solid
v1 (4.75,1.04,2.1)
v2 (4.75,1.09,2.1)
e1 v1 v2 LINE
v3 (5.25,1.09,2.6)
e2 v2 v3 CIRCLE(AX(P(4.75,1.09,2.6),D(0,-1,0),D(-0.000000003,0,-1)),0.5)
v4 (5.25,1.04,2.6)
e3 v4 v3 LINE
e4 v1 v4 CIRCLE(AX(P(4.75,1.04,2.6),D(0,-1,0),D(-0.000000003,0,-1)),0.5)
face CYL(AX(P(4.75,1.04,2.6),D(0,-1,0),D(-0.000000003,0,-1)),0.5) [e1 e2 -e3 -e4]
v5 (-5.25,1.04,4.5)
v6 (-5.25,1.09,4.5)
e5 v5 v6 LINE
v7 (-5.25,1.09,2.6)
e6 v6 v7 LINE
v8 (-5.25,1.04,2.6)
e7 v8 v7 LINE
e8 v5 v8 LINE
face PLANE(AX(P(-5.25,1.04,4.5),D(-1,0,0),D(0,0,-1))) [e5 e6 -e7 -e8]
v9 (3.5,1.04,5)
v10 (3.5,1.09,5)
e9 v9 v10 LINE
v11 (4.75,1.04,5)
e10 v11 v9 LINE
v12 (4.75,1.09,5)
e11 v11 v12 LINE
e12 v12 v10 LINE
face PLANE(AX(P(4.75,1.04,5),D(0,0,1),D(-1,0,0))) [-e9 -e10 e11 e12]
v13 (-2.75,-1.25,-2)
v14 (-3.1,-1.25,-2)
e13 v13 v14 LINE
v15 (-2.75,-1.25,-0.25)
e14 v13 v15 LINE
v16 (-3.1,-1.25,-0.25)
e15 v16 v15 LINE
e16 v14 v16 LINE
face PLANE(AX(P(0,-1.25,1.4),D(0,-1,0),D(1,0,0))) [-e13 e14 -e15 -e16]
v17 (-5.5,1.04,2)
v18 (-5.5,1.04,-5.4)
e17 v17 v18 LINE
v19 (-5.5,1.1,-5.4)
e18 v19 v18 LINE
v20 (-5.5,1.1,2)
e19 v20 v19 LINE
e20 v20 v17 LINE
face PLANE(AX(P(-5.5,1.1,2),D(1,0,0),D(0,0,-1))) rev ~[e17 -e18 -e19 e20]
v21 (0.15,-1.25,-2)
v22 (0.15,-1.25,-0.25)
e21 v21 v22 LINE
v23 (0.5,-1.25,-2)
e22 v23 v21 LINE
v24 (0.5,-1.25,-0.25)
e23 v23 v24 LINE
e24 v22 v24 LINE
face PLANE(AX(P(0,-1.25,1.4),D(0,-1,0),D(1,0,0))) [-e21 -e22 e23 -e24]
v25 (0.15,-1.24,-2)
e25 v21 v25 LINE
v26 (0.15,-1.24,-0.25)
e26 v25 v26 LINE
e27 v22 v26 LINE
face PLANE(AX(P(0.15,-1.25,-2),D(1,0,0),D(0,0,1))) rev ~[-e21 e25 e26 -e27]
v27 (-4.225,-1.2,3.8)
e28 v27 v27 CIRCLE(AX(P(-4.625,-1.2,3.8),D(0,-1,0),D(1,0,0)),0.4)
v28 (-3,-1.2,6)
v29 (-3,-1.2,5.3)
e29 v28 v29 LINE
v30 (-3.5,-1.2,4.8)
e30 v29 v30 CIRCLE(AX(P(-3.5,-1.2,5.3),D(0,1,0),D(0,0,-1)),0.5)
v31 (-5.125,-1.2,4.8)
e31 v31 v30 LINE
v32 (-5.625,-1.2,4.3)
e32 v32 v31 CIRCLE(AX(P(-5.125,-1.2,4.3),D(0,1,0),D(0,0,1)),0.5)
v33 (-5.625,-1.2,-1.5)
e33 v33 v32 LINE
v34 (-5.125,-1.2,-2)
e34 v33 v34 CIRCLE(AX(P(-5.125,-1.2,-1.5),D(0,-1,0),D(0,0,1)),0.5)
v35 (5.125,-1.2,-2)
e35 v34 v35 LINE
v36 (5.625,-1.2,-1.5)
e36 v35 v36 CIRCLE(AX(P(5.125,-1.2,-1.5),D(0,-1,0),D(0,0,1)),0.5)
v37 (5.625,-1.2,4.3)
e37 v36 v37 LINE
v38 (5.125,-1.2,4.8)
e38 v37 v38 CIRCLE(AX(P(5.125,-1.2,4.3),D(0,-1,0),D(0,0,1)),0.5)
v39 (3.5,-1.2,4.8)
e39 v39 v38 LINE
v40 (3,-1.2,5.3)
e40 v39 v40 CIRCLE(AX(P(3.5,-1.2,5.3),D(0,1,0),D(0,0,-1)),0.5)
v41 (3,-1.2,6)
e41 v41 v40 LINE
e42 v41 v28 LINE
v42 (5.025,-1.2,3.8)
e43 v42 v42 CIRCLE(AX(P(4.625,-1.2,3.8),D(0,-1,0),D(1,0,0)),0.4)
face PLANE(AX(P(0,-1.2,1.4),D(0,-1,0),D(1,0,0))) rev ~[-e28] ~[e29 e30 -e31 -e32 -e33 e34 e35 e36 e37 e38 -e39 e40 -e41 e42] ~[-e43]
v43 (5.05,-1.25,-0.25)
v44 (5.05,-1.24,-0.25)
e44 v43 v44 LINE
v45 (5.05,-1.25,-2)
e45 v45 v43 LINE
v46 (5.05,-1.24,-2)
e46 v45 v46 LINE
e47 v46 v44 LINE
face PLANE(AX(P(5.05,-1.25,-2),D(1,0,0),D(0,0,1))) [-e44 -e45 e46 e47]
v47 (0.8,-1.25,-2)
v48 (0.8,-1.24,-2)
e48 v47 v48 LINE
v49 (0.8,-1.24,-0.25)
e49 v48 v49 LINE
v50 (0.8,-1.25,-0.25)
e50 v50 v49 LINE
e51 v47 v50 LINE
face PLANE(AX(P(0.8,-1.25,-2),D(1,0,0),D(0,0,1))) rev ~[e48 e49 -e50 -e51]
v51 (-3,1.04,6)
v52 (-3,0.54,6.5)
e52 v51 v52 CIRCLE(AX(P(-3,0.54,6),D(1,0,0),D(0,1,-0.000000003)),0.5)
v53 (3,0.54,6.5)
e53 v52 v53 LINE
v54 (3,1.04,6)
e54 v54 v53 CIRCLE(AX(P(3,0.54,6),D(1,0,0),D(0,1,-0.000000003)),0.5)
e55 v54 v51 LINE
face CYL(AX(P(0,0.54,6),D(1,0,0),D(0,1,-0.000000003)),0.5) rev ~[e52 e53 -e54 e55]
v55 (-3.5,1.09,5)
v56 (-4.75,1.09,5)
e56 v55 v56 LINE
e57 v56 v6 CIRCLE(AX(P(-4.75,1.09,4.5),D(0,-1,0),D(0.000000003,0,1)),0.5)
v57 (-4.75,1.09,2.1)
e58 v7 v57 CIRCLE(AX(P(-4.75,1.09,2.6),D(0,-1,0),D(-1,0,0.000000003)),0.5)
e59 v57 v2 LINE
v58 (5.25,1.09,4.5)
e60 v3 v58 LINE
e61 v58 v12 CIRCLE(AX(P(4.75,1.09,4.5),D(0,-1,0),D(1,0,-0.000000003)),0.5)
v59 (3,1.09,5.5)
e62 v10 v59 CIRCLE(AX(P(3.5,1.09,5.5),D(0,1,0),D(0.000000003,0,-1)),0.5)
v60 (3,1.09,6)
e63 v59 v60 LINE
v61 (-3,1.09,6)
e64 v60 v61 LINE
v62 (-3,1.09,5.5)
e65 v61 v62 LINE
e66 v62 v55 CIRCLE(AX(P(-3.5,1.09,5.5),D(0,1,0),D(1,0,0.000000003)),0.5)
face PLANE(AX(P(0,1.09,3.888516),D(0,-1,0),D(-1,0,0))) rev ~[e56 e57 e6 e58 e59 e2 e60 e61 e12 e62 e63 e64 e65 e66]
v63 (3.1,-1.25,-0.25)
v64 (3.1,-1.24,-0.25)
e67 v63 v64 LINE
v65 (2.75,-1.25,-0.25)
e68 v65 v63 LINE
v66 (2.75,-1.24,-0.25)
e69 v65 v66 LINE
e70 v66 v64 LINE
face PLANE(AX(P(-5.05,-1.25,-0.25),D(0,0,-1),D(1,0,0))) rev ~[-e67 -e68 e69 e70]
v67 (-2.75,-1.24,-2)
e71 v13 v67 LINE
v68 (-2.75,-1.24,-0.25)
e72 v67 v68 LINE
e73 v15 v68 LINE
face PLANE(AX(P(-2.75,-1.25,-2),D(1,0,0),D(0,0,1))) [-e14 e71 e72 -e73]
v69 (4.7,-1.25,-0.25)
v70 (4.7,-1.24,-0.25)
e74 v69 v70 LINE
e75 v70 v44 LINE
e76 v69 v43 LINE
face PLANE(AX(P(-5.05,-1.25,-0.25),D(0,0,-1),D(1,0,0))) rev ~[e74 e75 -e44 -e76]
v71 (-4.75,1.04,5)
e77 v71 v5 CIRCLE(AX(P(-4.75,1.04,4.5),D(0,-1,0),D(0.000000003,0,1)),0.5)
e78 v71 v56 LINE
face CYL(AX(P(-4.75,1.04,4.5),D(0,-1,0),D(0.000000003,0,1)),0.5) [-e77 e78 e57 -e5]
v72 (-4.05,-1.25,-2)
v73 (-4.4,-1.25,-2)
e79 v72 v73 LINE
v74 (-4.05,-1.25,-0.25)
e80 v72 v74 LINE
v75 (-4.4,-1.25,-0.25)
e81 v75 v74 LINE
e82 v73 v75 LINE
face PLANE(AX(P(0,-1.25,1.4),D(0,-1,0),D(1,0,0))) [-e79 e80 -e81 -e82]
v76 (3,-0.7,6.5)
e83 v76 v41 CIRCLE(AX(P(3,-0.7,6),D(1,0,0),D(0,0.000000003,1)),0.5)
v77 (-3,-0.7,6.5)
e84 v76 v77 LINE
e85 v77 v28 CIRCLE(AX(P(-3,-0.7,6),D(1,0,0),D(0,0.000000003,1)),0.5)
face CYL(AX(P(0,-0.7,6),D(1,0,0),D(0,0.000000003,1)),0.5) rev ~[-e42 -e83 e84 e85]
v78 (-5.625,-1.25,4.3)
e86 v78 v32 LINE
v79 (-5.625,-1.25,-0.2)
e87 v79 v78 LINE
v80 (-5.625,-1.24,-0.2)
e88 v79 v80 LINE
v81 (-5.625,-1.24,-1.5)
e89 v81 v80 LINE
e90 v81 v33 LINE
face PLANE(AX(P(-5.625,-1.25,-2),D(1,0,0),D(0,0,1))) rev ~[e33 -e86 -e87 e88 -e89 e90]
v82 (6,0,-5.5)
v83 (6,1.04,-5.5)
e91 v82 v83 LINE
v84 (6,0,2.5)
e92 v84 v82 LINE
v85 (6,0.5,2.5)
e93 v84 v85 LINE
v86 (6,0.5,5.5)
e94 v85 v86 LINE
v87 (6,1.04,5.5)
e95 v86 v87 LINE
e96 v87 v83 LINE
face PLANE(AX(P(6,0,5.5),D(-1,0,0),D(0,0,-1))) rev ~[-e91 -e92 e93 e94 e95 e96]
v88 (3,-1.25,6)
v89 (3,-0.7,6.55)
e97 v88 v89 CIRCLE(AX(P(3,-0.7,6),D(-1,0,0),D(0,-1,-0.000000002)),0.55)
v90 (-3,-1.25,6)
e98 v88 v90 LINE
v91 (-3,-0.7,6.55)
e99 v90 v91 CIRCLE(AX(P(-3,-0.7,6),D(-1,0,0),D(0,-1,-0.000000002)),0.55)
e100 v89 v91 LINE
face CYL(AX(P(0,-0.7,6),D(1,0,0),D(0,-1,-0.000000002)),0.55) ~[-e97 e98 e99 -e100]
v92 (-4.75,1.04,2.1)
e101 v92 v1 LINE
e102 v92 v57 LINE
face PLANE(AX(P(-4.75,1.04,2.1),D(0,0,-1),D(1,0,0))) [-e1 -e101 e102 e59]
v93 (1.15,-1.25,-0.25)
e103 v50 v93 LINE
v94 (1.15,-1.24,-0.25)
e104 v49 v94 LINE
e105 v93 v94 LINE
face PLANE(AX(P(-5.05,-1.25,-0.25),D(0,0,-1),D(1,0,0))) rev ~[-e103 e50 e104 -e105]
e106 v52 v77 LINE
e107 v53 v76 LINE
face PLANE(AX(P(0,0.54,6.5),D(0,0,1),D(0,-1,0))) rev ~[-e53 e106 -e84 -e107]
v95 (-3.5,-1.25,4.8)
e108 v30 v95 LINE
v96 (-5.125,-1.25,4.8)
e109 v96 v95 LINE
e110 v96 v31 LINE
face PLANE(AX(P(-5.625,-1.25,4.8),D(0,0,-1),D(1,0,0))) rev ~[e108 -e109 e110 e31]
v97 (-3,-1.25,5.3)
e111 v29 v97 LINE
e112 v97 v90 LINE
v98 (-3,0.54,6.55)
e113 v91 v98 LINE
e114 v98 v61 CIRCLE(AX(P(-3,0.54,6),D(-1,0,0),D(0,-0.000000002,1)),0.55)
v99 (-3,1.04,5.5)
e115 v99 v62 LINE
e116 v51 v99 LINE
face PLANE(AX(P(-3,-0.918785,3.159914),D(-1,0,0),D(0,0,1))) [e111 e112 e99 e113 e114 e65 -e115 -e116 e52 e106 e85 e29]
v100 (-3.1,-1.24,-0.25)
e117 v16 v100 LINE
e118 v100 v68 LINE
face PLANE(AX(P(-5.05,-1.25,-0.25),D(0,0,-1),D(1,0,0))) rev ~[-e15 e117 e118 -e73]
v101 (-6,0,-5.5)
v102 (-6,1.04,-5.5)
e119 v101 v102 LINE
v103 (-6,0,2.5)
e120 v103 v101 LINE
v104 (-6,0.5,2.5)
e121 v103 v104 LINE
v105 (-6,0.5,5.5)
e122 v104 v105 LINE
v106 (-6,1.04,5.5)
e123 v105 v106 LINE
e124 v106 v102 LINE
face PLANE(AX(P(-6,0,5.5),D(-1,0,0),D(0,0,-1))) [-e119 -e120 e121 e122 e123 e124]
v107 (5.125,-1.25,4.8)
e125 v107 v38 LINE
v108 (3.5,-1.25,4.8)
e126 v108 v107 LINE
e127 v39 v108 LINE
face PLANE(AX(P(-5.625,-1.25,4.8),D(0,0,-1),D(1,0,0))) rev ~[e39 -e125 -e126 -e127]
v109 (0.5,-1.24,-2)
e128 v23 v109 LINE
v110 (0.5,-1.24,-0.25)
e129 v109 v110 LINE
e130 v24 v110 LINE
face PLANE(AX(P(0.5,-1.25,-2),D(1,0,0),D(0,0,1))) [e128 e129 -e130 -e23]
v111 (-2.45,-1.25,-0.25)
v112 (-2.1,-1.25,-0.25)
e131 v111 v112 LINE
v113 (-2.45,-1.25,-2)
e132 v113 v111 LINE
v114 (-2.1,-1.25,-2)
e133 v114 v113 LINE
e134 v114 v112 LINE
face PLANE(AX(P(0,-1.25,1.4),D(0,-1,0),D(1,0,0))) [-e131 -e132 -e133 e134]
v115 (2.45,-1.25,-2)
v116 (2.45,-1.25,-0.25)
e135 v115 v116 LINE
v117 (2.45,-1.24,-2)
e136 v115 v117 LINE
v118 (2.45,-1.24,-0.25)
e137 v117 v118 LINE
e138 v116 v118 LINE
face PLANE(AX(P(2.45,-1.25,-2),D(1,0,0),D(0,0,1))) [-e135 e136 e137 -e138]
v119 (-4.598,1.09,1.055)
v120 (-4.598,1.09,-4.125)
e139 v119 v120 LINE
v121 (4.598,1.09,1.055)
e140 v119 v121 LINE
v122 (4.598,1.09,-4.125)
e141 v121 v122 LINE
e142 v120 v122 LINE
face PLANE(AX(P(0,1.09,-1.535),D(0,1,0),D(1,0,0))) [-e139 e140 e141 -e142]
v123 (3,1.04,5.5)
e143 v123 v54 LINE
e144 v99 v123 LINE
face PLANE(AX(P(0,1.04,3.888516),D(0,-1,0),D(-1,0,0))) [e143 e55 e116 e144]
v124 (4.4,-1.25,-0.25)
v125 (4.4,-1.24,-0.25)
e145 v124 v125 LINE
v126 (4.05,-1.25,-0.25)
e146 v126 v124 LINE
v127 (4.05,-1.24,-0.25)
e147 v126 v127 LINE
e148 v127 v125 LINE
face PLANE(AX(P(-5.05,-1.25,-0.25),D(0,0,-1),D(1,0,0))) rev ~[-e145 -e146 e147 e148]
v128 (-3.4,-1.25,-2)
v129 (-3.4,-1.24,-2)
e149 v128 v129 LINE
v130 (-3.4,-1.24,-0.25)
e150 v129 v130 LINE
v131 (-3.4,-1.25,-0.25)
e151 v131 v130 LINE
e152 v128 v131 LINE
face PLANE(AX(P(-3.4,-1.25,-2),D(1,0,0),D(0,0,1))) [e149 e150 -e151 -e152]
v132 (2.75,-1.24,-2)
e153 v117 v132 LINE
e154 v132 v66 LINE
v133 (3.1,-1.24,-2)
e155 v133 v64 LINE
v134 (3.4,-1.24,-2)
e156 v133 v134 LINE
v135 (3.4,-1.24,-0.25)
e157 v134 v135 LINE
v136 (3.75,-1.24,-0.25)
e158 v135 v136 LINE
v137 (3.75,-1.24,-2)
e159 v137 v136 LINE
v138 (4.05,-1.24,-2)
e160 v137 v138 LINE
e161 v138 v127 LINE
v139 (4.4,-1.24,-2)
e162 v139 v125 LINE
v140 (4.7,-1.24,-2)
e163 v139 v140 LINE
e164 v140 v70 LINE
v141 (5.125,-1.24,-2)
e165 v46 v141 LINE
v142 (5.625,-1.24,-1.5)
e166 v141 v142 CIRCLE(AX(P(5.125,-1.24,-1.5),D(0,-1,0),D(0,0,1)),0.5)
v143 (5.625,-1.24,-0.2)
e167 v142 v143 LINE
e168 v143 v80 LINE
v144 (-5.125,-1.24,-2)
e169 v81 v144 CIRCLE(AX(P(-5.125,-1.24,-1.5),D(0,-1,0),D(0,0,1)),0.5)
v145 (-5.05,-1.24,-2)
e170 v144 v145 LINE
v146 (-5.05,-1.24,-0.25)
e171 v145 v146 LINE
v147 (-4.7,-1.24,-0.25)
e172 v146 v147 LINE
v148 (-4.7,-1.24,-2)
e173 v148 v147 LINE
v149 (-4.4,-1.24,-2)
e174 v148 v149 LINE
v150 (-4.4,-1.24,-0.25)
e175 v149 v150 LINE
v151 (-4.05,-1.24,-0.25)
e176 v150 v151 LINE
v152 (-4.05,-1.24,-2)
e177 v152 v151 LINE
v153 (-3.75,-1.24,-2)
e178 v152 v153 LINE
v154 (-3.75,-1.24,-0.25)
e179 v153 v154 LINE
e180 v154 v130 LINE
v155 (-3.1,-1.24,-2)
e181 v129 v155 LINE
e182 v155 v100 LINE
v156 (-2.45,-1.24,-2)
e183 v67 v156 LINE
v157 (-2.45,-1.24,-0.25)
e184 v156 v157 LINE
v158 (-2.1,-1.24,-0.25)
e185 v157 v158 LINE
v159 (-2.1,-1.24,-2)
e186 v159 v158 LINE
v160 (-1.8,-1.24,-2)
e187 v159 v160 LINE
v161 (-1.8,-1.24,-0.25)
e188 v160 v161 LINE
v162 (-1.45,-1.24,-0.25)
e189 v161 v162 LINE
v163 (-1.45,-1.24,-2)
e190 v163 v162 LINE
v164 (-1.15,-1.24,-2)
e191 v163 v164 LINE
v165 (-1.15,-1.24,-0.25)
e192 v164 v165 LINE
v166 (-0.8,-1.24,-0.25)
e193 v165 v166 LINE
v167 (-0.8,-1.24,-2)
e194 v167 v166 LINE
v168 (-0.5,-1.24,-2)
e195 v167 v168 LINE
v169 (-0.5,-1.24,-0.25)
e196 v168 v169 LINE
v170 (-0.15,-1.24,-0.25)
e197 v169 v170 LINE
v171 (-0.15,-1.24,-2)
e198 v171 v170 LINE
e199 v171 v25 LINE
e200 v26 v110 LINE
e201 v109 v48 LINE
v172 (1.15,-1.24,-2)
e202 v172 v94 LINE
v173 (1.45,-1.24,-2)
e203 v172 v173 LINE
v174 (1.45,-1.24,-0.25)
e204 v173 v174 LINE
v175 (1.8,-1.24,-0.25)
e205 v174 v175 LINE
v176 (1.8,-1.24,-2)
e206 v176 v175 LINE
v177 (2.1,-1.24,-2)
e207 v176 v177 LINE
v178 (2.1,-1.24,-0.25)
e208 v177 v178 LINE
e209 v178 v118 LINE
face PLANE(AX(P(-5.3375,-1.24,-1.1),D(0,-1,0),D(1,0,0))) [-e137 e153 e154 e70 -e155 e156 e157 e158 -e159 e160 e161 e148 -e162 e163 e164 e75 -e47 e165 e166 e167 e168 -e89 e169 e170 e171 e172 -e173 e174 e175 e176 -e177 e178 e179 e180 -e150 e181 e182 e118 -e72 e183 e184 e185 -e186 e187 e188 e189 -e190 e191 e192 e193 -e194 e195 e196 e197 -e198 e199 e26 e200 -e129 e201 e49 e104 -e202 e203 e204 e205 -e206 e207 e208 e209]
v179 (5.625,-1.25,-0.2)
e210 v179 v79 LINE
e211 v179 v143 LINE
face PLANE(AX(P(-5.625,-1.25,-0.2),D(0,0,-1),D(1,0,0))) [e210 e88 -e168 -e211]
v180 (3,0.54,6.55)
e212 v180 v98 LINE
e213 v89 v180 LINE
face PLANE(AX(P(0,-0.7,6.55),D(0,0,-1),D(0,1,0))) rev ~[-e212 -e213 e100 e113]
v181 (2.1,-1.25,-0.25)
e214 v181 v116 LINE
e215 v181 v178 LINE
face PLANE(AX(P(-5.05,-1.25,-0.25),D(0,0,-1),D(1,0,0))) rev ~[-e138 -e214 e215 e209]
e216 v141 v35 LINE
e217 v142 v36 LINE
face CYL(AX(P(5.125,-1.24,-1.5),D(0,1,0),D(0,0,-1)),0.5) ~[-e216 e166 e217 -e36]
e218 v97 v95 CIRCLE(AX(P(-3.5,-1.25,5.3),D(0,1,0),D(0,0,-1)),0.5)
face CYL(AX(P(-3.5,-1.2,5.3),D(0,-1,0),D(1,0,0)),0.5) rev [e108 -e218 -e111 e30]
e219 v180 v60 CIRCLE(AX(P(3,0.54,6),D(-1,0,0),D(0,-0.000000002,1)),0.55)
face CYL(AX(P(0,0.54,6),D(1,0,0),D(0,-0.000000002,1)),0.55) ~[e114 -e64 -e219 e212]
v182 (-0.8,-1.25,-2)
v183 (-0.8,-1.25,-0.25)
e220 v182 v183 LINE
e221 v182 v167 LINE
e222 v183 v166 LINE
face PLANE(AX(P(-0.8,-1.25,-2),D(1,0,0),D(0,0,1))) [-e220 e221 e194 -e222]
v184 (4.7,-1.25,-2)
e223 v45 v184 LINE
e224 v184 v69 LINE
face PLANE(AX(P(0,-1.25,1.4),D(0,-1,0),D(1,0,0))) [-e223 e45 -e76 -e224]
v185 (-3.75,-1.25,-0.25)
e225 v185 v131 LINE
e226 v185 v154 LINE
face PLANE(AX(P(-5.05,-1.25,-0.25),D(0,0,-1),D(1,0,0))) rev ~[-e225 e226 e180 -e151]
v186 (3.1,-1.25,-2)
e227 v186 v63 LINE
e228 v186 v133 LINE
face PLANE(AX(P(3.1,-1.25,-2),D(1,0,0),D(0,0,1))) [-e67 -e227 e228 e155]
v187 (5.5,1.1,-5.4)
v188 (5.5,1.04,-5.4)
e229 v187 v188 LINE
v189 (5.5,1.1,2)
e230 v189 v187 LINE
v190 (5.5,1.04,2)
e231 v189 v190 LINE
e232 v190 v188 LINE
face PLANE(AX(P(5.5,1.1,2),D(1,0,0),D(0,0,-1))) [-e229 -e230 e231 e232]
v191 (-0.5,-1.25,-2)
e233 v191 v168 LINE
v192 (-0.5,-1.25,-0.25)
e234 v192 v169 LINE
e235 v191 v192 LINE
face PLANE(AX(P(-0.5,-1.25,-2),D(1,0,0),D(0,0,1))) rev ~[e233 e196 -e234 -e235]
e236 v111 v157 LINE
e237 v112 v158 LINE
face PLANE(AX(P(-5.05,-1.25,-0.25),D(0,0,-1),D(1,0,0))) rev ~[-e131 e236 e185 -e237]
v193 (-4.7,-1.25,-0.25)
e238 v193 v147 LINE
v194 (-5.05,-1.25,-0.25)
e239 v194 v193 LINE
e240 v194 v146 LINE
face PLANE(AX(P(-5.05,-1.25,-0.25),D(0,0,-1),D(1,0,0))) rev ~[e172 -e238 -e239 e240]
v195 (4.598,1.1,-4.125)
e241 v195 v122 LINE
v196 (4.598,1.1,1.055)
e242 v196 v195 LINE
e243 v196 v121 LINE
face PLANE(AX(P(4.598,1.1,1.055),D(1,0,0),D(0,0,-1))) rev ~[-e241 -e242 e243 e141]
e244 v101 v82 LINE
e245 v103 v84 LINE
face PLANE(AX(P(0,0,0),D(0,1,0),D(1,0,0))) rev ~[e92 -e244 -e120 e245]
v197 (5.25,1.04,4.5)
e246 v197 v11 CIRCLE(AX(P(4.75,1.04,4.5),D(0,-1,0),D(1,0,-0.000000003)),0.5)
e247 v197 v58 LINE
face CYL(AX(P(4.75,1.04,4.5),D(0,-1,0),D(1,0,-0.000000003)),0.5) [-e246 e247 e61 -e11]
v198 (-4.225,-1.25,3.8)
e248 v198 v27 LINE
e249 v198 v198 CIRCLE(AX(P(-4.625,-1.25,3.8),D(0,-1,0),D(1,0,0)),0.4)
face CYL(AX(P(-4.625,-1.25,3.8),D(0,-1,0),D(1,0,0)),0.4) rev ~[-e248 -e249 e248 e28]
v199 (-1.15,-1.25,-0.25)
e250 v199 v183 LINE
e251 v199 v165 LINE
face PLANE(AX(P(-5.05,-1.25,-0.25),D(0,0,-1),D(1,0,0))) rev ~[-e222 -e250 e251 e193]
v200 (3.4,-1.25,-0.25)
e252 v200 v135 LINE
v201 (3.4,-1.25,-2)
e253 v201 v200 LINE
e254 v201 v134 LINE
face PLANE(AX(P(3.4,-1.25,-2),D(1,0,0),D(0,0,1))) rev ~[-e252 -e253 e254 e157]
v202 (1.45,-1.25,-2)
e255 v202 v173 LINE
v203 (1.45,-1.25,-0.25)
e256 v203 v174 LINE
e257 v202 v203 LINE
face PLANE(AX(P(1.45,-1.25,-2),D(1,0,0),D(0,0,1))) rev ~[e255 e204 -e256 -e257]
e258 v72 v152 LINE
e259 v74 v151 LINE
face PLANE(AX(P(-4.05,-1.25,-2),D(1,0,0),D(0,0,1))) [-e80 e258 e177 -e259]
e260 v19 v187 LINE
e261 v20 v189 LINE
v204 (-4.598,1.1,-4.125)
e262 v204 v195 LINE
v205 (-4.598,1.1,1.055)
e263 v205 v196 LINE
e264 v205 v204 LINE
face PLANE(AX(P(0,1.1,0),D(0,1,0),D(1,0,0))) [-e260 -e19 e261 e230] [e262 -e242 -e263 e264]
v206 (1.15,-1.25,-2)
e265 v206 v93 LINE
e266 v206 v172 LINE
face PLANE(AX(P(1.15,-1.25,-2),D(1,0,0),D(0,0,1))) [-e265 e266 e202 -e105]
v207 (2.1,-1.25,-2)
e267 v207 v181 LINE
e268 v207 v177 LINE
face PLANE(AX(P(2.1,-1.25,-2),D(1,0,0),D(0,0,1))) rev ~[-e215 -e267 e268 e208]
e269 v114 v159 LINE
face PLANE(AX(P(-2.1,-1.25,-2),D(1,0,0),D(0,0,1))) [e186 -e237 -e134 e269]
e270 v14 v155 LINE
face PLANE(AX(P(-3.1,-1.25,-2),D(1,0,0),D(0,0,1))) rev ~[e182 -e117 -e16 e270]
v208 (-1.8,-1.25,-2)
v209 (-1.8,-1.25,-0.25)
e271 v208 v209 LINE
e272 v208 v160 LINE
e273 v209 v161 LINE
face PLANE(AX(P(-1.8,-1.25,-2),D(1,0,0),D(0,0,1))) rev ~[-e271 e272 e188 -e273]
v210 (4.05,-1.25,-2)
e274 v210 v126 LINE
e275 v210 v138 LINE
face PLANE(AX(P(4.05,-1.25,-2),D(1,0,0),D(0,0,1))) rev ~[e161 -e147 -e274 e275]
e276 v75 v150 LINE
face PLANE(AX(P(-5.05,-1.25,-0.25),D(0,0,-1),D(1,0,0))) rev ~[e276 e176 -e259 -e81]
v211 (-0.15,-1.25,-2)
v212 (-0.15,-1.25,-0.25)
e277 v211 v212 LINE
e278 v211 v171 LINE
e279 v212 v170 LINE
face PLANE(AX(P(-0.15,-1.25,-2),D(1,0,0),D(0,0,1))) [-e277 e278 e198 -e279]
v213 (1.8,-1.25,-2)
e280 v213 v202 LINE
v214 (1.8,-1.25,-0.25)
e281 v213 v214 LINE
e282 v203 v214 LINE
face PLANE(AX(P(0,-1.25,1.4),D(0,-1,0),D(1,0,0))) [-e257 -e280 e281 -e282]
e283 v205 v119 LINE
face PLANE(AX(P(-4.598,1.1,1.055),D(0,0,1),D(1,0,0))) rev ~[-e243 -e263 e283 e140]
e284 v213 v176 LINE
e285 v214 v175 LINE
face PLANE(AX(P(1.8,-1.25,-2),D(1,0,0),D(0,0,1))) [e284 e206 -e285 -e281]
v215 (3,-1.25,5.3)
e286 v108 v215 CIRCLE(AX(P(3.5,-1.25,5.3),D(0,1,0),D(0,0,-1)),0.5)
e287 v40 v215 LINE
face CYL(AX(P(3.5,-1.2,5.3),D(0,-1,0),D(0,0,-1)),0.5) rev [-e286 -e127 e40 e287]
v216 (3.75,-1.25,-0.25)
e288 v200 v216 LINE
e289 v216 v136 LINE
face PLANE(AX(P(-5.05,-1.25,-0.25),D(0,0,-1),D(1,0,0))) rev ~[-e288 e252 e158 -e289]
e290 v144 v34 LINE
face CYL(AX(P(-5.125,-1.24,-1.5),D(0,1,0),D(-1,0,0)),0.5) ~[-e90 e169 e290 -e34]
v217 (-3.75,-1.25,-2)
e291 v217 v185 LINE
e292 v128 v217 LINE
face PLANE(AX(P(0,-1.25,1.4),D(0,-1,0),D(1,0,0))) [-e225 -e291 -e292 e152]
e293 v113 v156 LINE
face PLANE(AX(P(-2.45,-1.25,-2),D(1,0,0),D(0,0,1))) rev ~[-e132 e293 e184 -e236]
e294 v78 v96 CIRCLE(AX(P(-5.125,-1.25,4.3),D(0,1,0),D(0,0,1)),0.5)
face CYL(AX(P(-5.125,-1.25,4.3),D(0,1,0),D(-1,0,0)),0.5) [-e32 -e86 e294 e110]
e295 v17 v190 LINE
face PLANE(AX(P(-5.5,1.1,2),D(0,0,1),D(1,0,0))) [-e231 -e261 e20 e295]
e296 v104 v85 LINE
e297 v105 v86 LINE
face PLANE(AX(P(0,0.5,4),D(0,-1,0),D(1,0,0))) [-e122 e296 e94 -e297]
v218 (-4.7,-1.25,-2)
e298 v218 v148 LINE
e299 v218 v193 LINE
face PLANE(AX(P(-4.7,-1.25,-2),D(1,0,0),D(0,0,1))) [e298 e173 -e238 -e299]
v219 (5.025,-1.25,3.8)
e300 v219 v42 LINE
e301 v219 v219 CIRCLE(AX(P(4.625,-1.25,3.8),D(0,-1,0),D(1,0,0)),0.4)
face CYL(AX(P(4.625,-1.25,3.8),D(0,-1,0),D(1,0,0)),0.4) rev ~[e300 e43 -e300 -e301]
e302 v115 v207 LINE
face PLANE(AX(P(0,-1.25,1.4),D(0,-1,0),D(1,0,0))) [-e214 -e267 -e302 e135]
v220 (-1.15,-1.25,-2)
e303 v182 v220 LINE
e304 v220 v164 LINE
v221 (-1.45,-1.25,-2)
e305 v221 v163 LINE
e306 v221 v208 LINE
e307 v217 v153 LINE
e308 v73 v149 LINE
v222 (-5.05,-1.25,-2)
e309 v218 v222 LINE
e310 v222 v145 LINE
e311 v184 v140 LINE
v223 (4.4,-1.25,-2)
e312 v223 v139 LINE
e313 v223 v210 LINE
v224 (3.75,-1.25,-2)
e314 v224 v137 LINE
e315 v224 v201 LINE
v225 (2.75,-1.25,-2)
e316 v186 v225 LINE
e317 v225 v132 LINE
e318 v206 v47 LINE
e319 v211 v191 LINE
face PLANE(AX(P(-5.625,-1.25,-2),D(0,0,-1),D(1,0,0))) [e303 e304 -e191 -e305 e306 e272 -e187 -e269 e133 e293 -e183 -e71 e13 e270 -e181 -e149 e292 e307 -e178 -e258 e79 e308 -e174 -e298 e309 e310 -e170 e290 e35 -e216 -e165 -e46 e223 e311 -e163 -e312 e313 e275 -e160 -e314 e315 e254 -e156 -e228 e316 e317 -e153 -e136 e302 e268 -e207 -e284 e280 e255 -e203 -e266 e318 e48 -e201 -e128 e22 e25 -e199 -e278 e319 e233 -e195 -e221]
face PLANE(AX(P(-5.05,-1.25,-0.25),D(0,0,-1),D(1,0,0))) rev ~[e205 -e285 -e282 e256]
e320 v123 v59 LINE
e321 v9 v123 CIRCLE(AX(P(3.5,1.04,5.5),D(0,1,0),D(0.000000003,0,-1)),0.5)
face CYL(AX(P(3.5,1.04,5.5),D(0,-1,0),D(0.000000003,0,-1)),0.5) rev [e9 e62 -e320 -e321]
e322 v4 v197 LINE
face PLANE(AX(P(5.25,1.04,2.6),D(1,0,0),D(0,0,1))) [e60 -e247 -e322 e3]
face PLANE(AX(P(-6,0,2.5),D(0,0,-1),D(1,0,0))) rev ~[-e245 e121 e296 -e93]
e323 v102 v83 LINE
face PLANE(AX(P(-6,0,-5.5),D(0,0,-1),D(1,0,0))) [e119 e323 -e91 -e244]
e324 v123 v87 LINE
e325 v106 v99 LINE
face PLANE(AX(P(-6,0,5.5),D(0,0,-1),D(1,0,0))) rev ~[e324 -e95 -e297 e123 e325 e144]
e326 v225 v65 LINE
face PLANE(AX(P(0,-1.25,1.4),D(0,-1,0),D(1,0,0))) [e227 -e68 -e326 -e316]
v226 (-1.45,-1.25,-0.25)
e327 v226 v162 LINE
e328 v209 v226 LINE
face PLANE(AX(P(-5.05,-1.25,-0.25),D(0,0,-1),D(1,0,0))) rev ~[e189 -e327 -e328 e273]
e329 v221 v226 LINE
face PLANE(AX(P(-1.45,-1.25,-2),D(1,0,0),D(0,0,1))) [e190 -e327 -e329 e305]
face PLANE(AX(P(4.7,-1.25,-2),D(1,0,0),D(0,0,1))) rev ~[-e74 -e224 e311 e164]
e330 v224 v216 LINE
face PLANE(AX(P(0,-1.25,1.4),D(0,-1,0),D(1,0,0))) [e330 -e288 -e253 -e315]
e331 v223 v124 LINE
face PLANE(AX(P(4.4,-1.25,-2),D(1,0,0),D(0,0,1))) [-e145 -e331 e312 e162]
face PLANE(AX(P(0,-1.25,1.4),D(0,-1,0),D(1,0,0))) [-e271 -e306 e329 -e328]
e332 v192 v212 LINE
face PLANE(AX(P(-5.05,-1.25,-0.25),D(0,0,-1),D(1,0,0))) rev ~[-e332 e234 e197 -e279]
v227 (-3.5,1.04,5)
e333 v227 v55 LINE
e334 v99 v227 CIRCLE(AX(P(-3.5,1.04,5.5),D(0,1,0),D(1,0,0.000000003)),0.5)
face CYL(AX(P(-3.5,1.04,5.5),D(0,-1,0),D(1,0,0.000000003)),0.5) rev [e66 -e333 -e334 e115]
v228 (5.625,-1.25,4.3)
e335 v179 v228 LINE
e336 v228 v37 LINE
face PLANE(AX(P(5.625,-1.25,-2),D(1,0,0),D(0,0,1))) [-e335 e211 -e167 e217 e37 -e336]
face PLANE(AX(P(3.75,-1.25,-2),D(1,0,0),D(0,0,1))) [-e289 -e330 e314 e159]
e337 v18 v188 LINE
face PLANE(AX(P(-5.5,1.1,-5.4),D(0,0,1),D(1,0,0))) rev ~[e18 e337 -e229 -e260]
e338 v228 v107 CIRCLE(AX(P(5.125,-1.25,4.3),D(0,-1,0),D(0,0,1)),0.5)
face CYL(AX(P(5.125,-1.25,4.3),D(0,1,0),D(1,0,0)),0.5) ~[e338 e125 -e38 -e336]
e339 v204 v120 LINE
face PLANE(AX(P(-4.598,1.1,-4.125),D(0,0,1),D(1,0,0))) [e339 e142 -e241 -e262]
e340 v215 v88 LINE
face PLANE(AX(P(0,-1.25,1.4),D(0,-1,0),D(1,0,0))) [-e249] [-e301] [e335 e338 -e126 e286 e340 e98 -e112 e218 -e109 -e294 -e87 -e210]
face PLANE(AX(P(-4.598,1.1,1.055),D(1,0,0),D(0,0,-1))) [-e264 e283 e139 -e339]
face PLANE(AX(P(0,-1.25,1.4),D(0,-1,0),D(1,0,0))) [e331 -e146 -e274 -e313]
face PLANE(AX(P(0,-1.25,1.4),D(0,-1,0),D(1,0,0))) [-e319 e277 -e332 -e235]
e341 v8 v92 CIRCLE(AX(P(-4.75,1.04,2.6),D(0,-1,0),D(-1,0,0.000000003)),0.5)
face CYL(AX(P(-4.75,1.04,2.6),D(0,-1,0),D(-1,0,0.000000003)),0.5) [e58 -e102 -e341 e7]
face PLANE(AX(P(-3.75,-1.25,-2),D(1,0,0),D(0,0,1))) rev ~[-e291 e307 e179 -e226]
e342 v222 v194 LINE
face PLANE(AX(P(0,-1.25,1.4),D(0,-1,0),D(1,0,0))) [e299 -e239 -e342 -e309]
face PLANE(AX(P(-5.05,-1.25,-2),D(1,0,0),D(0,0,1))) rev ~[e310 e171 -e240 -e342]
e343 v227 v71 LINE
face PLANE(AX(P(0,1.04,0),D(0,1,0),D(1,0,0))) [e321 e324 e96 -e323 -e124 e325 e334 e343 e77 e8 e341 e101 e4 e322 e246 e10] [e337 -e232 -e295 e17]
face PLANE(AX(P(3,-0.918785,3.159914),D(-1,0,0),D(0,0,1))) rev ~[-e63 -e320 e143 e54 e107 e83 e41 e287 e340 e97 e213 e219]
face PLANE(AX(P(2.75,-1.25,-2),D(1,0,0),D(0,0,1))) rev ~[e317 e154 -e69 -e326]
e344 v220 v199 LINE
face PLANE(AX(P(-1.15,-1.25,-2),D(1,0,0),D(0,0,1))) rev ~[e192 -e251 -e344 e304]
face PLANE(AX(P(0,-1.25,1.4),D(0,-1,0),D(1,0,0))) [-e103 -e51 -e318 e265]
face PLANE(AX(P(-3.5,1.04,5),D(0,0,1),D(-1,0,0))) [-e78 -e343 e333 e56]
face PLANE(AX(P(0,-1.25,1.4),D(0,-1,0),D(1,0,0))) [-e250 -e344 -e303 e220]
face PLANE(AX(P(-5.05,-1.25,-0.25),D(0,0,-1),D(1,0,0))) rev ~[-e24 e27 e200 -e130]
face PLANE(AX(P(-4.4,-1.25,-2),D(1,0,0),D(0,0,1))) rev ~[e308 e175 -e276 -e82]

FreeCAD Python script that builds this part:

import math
import FreeCAD as App
import Part
import Sketcher
Q = App.Units.Quantity


def edges_at(feature, points):
    """Names of the edges that pass closest to the given points."""
    edges = feature.Shape.Edges
    near = lambda p: min(range(len(edges)), key=lambda i: edges[i].distToShape(Part.Vertex(*p))[0])
    return sorted({f"Edge{near(p) + 1}" for p in points})


def add_polygon(sketch, points):
    """Adds a closed chain of lines whose ends are joined by coincident constraints."""
    first, n = sketch.GeometryCount, len(points)
    for a, b in zip(points, points[1:] + points[:1]):
        sketch.addGeometry(Part.LineSegment(App.Vector(*a, 0), App.Vector(*b, 0)), False)
    for i in range(n):
        sketch.addConstraint(Sketcher.Constraint("Coincident", first + i, 2, first + (i + 1) % n, 1))

doc = App.newDocument("Part")
body = doc.addObject("PartDesign::Body", "Body")

# Sketch on XZ plane
sketch1 = body.newObject("Sketcher::SketchObject", "Sketch")
sketch1.AttachmentSupport = (doc.getObject("XZ_Plane"), [""])
sketch1.MapMode = "FlatFace"
add_polygon(sketch1, [(-6, -6), (-6, 6), (6, 6), (6, -6)])  # lines 0-3
sketch1.addConstraint([
    Sketcher.Constraint("Vertical", 0),
    Sketcher.Constraint("Horizontal", 1),
    Sketcher.Constraint("Vertical", 2),
    Sketcher.Constraint("Horizontal", 3),
    Sketcher.Constraint("Symmetric", 0, 2, 2, 2, -1, 1),
    Sketcher.Constraint("DistanceX", 1, 1, 1, 2, Q("12 mm")),
    Sketcher.Constraint("DistanceY", 0, 1, 0, 2, Q("11 mm")),
])
pad1 = body.newObject("PartDesign::Pad", "Pad")
pad1.Profile = sketch1
pad1.Length = 1.1
pad1.Reversed = True

# Sketch on XZ plane
sketch2 = body.newObject("Sketcher::SketchObject", "Sketch001")
sketch2.AttachmentSupport = (doc.getObject("XZ_Plane"), [""])
sketch2.MapMode = "FlatFace"
sketch2.AttachmentOffset = App.Placement(App.Vector(0, 0, -1.1), App.Rotation())
add_polygon(sketch2, [(-6, -6), (-6, 6), (6, 6), (6, -6)])  # lines 0-3
add_polygon(sketch2, [(6, 2), (-6, 2), (-6, -5), (6, -5)])  # lines 4-7
sketch2.addConstraint([
    Sketcher.Constraint("Vertical", 0),
    Sketcher.Constraint("Horizontal", 1),
    Sketcher.Constraint("Vertical", 2),
    Sketcher.Constraint("Horizontal", 3),
    Sketcher.Constraint("Horizontal", 4),
    Sketcher.Constraint("Vertical", 5),
    Sketcher.Constraint("Horizontal", 6),
    Sketcher.Constraint("Vertical", 7),
    Sketcher.Constraint("Symmetric", 0, 2, 2, 2, -1, 1),
    Sketcher.Constraint("Equal", 6, 0),
    Sketcher.Constraint("DistanceX", 1, 1, 1, 2, Q("12 mm")),
    Sketcher.Constraint("DistanceX", 4, 2, 4, 1, Q("11 mm")),
    Sketcher.Constraint("DistanceY", 5, 2, 5, 1, Q("7.4 mm")),
    Sketcher.Constraint("DistanceY", -1, 1, 4, 2, Q("2 mm")),
    Sketcher.Constraint("DistanceX", 4, 2, -1, 1, Q("5.5 mm")),
])
pocket1 = body.newObject("PartDesign::Pocket", "Pocket")
pocket1.Profile = sketch2
pocket1.Length = 0.06
pocket1.Reversed = True

# Sketch on XZ plane
sketch3 = body.newObject("Sketcher::SketchObject", "Sketch002")
sketch3.AttachmentSupport = (doc.getObject("XZ_Plane"), [""])
sketch3.MapMode = "FlatFace"
sketch3.AttachmentOffset = App.Placement(App.Vector(0, 0, -1.1), App.Rotation())
add_polygon(sketch3, [(-5, -4), (-5, 1), (5, 1), (5, -4)])  # lines 0-3
sketch3.addConstraint([
    Sketcher.Constraint("Vertical", 0),
    Sketcher.Constraint("Horizontal", 1),
    Sketcher.Constraint("Vertical", 2),
    Sketcher.Constraint("Horizontal", 3),
    Sketcher.Constraint("DistanceY", 0, 1, 0, 2, Q("5.18 mm")),
    Sketcher.Constraint("DistanceX", 1, 1, 1, 2, Q("9.196 mm")),
    Sketcher.Constraint("DistanceX", 0, 2, -1, 1, Q("4.598 mm")),
    Sketcher.Constraint("DistanceY", -1, 1, 0, 2, Q("1.055 mm")),
])
pocket2 = body.newObject("PartDesign::Pocket", "Pocket001")
pocket2.Profile = sketch3
pocket2.Length = 0.01
pocket2.Reversed = True

# Sketch on XZ plane
sketch4 = body.newObject("Sketcher::SketchObject", "Sketch003")
sketch4.AttachmentSupport = (doc.getObject("XZ_Plane"), [""])
sketch4.MapMode = "FlatFace"
add_polygon(sketch4, [(-6, 5.5), (-6, 2.5), (6, 2.5), (6, 5.5)])  # lines 0-3
sketch4.addConstraint([
    Sketcher.Constraint("Vertical", 0),
    Sketcher.Constraint("Horizontal", 1),
    Sketcher.Constraint("Vertical", 2),
    Sketcher.Constraint("Horizontal", 3),
    Sketcher.Constraint("DistanceX", 1, 1, 1, 2, Q("12 mm")),
    Sketcher.Constraint("DistanceY", 0, 2, 0, 1, Q("3 mm")),
    Sketcher.Constraint("DistanceX", 0, 2, -1, 1, Q("6 mm")),
    Sketcher.Constraint("DistanceY", -1, 1, 0, 2, Q("2.5 mm")),
])
pocket3 = body.newObject("PartDesign::Pocket", "Pocket002")
pocket3.Profile = sketch4
pocket3.Length = 0.5

# Sketch on XZ plane
sketch5 = body.newObject("Sketcher::SketchObject", "Sketch004")
sketch5.AttachmentSupport = (doc.getObject("XZ_Plane"), [""])
sketch5.MapMode = "FlatFace"
sketch5.AttachmentOffset = App.Placement(App.Vector(0, 0, -1.04), App.Rotation())
sketch5.addGeometry([
    Part.LineSegment(App.Vector(4.75, 2.1, 0), App.Vector(-4.75, 2.1, 0)),  # 0
    Part.ArcOfCircle(Part.Circle(App.Vector(-4.75, 2.6, 0), App.Vector(0, 0, 1), 0.5), math.radians(180), math.radians(270)),  # 1
    Part.LineSegment(App.Vector(-5.25, 2.6, 0), App.Vector(-5.25, 4.5, 0)),  # 2
    Part.ArcOfCircle(Part.Circle(App.Vector(-4.75, 4.5, 0), App.Vector(0, 0, 1), 0.5), math.radians(90), math.radians(180)),  # 3
    Part.LineSegment(App.Vector(-4.75, 5, 0), App.Vector(-3.5, 5, 0)),  # 4
    Part.ArcOfCircle(Part.Circle(App.Vector(-3.5, 5.5, 0), App.Vector(0, 0, 1), 0.5), math.radians(-90), math.radians(0)),  # 5
    Part.LineSegment(App.Vector(-3, 5.5, 0), App.Vector(-3, 6, 0)),  # 6
    Part.LineSegment(App.Vector(-3, 6, 0), App.Vector(3, 6, 0)),  # 7
    Part.LineSegment(App.Vector(3, 6, 0), App.Vector(3, 5.5, 0)),  # 8
    Part.ArcOfCircle(Part.Circle(App.Vector(3.5, 5.5, 0), App.Vector(0, 0, 1), 0.5), math.radians(180), math.radians(270)),  # 9
    Part.LineSegment(App.Vector(3.5, 5, 0), App.Vector(4.75, 5, 0)),  # 10
    Part.ArcOfCircle(Part.Circle(App.Vector(4.75, 4.5, 0), App.Vector(0, 0, 1), 0.5), math.radians(0), math.radians(90)),  # 11
    Part.LineSegment(App.Vector(5.25, 4.5, 0), App.Vector(5.25, 2.6, 0)),  # 12
    Part.ArcOfCircle(Part.Circle(App.Vector(4.75, 2.6, 0), App.Vector(0, 0, 1), 0.5), math.radians(-90), math.radians(0)),  # 13
], False)
sketch5.addConstraint([
    Sketcher.Constraint("Tangent", 0, 2, 1, 2),
    Sketcher.Constraint("Tangent", 1, 1, 2, 1),
    Sketcher.Constraint("Tangent", 2, 2, 3, 2),
    Sketcher.Constraint("Tangent", 3, 1, 4, 1),
    Sketcher.Constraint("Tangent", 4, 2, 5, 1),
    Sketcher.Constraint("Tangent", 5, 2, 6, 1),
    Sketcher.Constraint("Coincident", 6, 2, 7, 1),
    Sketcher.Constraint("Coincident", 7, 2, 8, 1),
    Sketcher.Constraint("Tangent", 8, 2, 9, 1),
    Sketcher.Constraint("Tangent", 9, 2, 10, 1),
    Sketcher.Constraint("Tangent", 10, 2, 11, 2),
    Sketcher.Constraint("Tangent", 11, 1, 12, 1),
    Sketcher.Constraint("Tangent", 12, 2, 13, 2),
    Sketcher.Constraint("Tangent", 13, 1, 0, 1),
    Sketcher.Constraint("Horizontal", 0),
    Sketcher.Constraint("Vertical", 2),
    Sketcher.Constraint("Horizontal", 4),
    Sketcher.Constraint("Vertical", 6),
    Sketcher.Constraint("Horizontal", 7),
    Sketcher.Constraint("Vertical", 8),
    Sketcher.Constraint("Horizontal", 10),
    Sketcher.Constraint("Vertical", 12),
    Sketcher.Constraint("Equal", 1, 3),
    Sketcher.Constraint("Equal", 3, 5),
    Sketcher.Constraint("Equal", 5, 9),
    Sketcher.Constraint("Equal", 9, 11),
    Sketcher.Constraint("Equal", 11, 13),
    Sketcher.Constraint("Symmetric", 5, 3, 9, 3, -2),
    Sketcher.Constraint("Equal", 4, 10),
    Sketcher.Constraint("Radius", 1, Q("0.5 mm")),
    Sketcher.Constraint("DistanceX", 7, 1, 7, 2, Q("6 mm")),
    Sketcher.Constraint("DistanceX", 0, 2, 0, 1, Q("9.5 mm")),
    Sketcher.Constraint("DistanceY", 2, 1, 2, 2, Q("1.9 mm")),
    Sketcher.Constraint("DistanceY", 6, 1, 6, 2, Q("0.5 mm")),
    Sketcher.Constraint("DistanceY", -1, 1, 3, 1, Q("5 mm")),
])
pad2 = body.newObject("PartDesign::Pad", "Pad001")
pad2.Profile = sketch5
pad2.Length = 0.05
pad2.Reversed = True

# Sketch on YZ plane
sketch6 = body.newObject("Sketcher::SketchObject", "Sketch005")
sketch6.AttachmentSupport = (doc.getObject("YZ_Plane"), [""])
sketch6.MapMode = "FlatFace"
sketch6.addGeometry([
    Part.LineSegment(App.Vector(-0.7, 6.5, 0), App.Vector(0.54, 6.5, 0)),  # 0
    Part.ArcOfCircle(Part.Circle(App.Vector(0.54, 6, 0), App.Vector(0, 0, 1), 0.5), math.radians(0), math.radians(90)),  # 1
    Part.LineSegment(App.Vector(1.04, 6, 0), App.Vector(1.09, 6, 0)),  # 2
    Part.ArcOfCircle(Part.Circle(App.Vector(0.54, 6, 0), App.Vector(0, 0, 1), 0.55), math.radians(0), math.radians(90)),  # 3
    Part.LineSegment(App.Vector(0.54, 6.55, 0), App.Vector(-0.7, 6.55, 0)),  # 4
    Part.ArcOfCircle(Part.Circle(App.Vector(-0.7, 6, 0), App.Vector(0, 0, 1), 0.55), math.radians(90), math.radians(180)),  # 5
    Part.LineSegment(App.Vector(-1.25, 6, 0), App.Vector(-1.25, -2, 0)),  # 6
    Part.LineSegment(App.Vector(-1.25, -2, 0), App.Vector(-1.2, -2, 0)),  # 7
    Part.LineSegment(App.Vector(-1.2, -2, 0), App.Vector(-1.2, 6, 0)),  # 8
    Part.ArcOfCircle(Part.Circle(App.Vector(-0.7, 6, 0), App.Vector(0, 0, 1), 0.5), math.radians(90), math.radians(180)),  # 9
], False)
sketch6.addConstraint([
    Sketcher.Constraint("Tangent", 0, 2, 1, 2),
    Sketcher.Constraint("Coincident", 1, 1, 2, 1),
    Sketcher.Constraint("Coincident", 2, 2, 3, 1),
    Sketcher.Constraint("Tangent", 3, 2, 4, 1),
    Sketcher.Constraint("Tangent", 4, 2, 5, 1),
    Sketcher.Constraint("Tangent", 5, 2, 6, 1),
    Sketcher.Constraint("Coincident", 6, 2, 7, 1),
    Sketcher.Constraint("Coincident", 7, 2, 8, 1),
    Sketcher.Constraint("Tangent", 8, 2, 9, 2),
    Sketcher.Constraint("Tangent", 9, 1, 0, 1),
    Sketcher.Constraint("Horizontal", 0),
    Sketcher.Constraint("Horizontal", 2),
    Sketcher.Constraint("Horizontal", 4),
    Sketcher.Constraint("Vertical", 6),
    Sketcher.Constraint("Horizontal", 7),
    Sketcher.Constraint("Vertical", 8),
    Sketcher.Constraint("Coincident", 3, 3, 1, 3),
    Sketcher.Constraint("Coincident", 9, 3, 5, 3),
    Sketcher.Constraint("Equal", 3, 5),
    Sketcher.Constraint("Horizontal", 9, 3, 1, 1),
    Sketcher.Constraint("Radius", 1, Q("0.5 mm")),
    Sketcher.Constraint("DistanceY", 6, 2, 6, 1, Q("8 mm")),
    Sketcher.Constraint("Radius", 3, Q("0.55 mm")),
    Sketcher.Constraint("DistanceY", -1, 1, 1, 3, Q("6 mm")),
    Sketcher.Constraint("DistanceX", 0, 1, 0, 2, Q("1.24 mm")),
    Sketcher.Constraint("DistanceX", 5, 3, -1, 1, Q("0.7 mm")),
])
pad3 = body.newObject("PartDesign::Pad", "Pad002")
pad3.Profile = sketch6
pad3.Length = 6
pad3.Midplane = True

# Sketch on XZ plane
sketch7 = body.newObject("Sketcher::SketchObject", "Sketch006")
sketch7.AttachmentSupport = (doc.getObject("XZ_Plane"), [""])
sketch7.MapMode = "FlatFace"
sketch7.AttachmentOffset = App.Placement(App.Vector(0, 0, 1.25), App.Rotation())
add_polygon(sketch7, [(-5.62, 4.8), (-5.62, -2), (5.62, -2), (5.62, 4.8)])  # lines 0-3
sketch7.addGeometry(Part.Circle(App.Vector(-4.62, 3.8, 0), App.Vector(0, 0, 1), 0.4), False)  # 4
sketch7.addGeometry(Part.Circle(App.Vector(4.62, 3.8, 0), App.Vector(0, 0, 1), 0.4), False)  # 5
sketch7.addConstraint([
    Sketcher.Constraint("Vertical", 0),
    Sketcher.Constraint("Horizontal", 1),
    Sketcher.Constraint("Vertical", 2),
    Sketcher.Constraint("Horizontal", 3),
    Sketcher.Constraint("Equal", 4, 5),
    Sketcher.Constraint("Symmetric", 4, 3, 5, 3, -2),
    Sketcher.Constraint("Diameter", 4, Q("0.8 mm")),
    Sketcher.Constraint("DistanceY", 0, 2, 0, 1, Q("6.8 mm")),
    Sketcher.Constraint("DistanceY", 0, 2, -1, 1, Q("2 mm")),
    Sketcher.Constraint("DistanceX", 0, 2, 4, 3, Q("1 mm")),
    Sketcher.Constraint("DistanceX", 5, 3, 1, 2, Q("1 mm")),
    Sketcher.Constraint("DistanceY", 5, 3, 2, 2, Q("1 mm")),
    Sketcher.Constraint("DistanceX", 1, 1, 1, 2, Q("11.25 mm")),
])
pad4 = body.newObject("PartDesign::Pad", "Pad003")
pad4.Profile = sketch7
pad4.Length = 0.05
pad4.Reversed = True

# Sketch on XZ plane
sketch8 = body.newObject("Sketcher::SketchObject", "Sketch007")
sketch8.AttachmentSupport = (doc.getObject("XZ_Plane"), [""])
sketch8.MapMode = "FlatFace"
sketch8.AttachmentOffset = App.Placement(App.Vector(0, 0, 1.25), App.Rotation())
add_polygon(sketch8, [(-0.15, -0.2), (-0.15, -2), (0.15, -2), (0.15, -0.2)])  # lines 0-3
add_polygon(sketch8, [(0.5, -0.2), (0.5, -2), (0.8, -2), (0.8, -0.2)])  # lines 4-7
add_polygon(sketch8, [(1.15, -0.2), (1.15, -2), (1.45, -2), (1.45, -0.2)])  # lines 8-11
add_polygon(sketch8, [(1.8, -0.2), (1.8, -2), (2.1, -2), (2.1, -0.2)])  # lines 12-15
add_polygon(sketch8, [(2.45, -0.2), (2.45, -2), (2.75, -2), (2.75, -0.2)])  # lines 16-19
add_polygon(sketch8, [(3.1, -0.2), (3.1, -2), (3.4, -2), (3.4, -0.2)])  # lines 20-23
add_polygon(sketch8, [(3.75, -0.2), (3.75, -2), (4.05, -2), (4.05, -0.2)])  # lines 24-27
add_polygon(sketch8, [(4.4, -0.2), (4.4, -2), (4.7, -2), (4.7, -0.2)])  # lines 28-31
add_polygon(sketch8, [(-4.7, -0.2), (-4.7, -2), (-4.4, -2), (-4.4, -0.2)])  # lines 32-35
add_polygon(sketch8, [(-4.05, -0.2), (-4.05, -2), (-3.75, -2), (-3.75, -0.2)])  # lines 36-39
add_polygon(sketch8, [(-3.4, -0.2), (-3.4, -2), (-3.1, -2), (-3.1, -0.2)])  # lines 40-43
add_polygon(sketch8, [(-2.75, -0.2), (-2.75, -2), (-2.45, -2), (-2.45, -0.2)])  # lines 44-47
add_polygon(sketch8, [(-2.1, -0.2), (-2.1, -2), (-1.8, -2), (-1.8, -0.2)])  # lines 48-51
add_polygon(sketch8, [(-1.45, -0.2), (-1.45, -2), (-1.15, -2), (-1.15, -0.2)])  # lines 52-55
add_polygon(sketch8, [(-0.8, -0.2), (-0.8, -2), (-0.5, -2), (-0.5, -0.2)])  # lines 56-59
add_polygon(sketch8, [(5.05, -0.2), (5.05, -2), (5.62, -2), (5.62, -0.2)])  # lines 60-63
add_polygon(sketch8, [(-5.62, -0.2), (-5.62, -2), (-5.05, -2), (-5.05, -0.2)])  # lines 64-67
sketch8.addConstraint([
    Sketcher.Constraint("Vertical", 0),
    Sketcher.Constraint("Horizontal", 1),
    Sketcher.Constraint("Vertical", 2),
    Sketcher.Constraint("Horizontal", 3),
    Sketcher.Constraint("Vertical", 4),
    Sketcher.Constraint("Horizontal", 5),
    Sketcher.Constraint("Vertical", 6),
    Sketcher.Constraint("Horizontal", 7),
    Sketcher.Constraint("Vertical", 8),
    Sketcher.Constraint("Horizontal", 9),
    Sketcher.Constraint("Vertical", 10),
    Sketcher.Constraint("Horizontal", 11),
    Sketcher.Constraint("Vertical", 12),
    Sketcher.Constraint("Horizontal", 13),
    Sketcher.Constraint("Vertical", 14),
    Sketcher.Constraint("Horizontal", 15),
    Sketcher.Constraint("Vertical", 16),
    Sketcher.Constraint("Horizontal", 17),
    Sketcher.Constraint("Vertical", 18),
    Sketcher.Constraint("Horizontal", 19),
    Sketcher.Constraint("Vertical", 20),
    Sketcher.Constraint("Horizontal", 21),
    Sketcher.Constraint("Vertical", 22),
    Sketcher.Constraint("Horizontal", 23),
    Sketcher.Constraint("Vertical", 24),
    Sketcher.Constraint("Horizontal", 25),
    Sketcher.Constraint("Vertical", 26),
    Sketcher.Constraint("Horizontal", 27),
    Sketcher.Constraint("Vertical", 28),
    Sketcher.Constraint("Horizontal", 29),
    Sketcher.Constraint("Vertical", 30),
    Sketcher.Constraint("Horizontal", 31),
    Sketcher.Constraint("Vertical", 32),
    Sketcher.Constraint("Horizontal", 33),
    Sketcher.Constraint("Vertical", 34),
    Sketcher.Constraint("Horizontal", 35),
    Sketcher.Constraint("Vertical", 36),
    Sketcher.Constraint("Horizontal", 37),
    Sketcher.Constraint("Vertical", 38),
    Sketcher.Constraint("Horizontal", 39),
    Sketcher.Constraint("Vertical", 40),
    Sketcher.Constraint("Horizontal", 41),
    Sketcher.Constraint("Vertical", 42),
    Sketcher.Constraint("Horizontal", 43),
    Sketcher.Constraint("Vertical", 44),
    Sketcher.Constraint("Horizontal", 45),
    Sketcher.Constraint("Vertical", 46),
    Sketcher.Constraint("Horizontal", 47),
    Sketcher.Constraint("Vertical", 48),
    Sketcher.Constraint("Horizontal", 49),
    Sketcher.Constraint("Vertical", 50),
    Sketcher.Constraint("Horizontal", 51),
    Sketcher.Constraint("Vertical", 52),
    Sketcher.Constraint("Horizontal", 53),
    Sketcher.Constraint("Vertical", 54),
    Sketcher.Constraint("Horizontal", 55),
    Sketcher.Constraint("Vertical", 56),
    Sketcher.Constraint("Horizontal", 57),
    Sketcher.Constraint("Vertical", 58),
    Sketcher.Constraint("Horizontal", 59),
    Sketcher.Constraint("Vertical", 60),
    Sketcher.Constraint("Horizontal", 61),
    Sketcher.Constraint("Vertical", 62),
    Sketcher.Constraint("Horizontal", 63),
    Sketcher.Constraint("Vertical", 64),
    Sketcher.Constraint("Horizontal", 65),
    Sketcher.Constraint("Vertical", 66),
    Sketcher.Constraint("Horizontal", 67),
    Sketcher.Constraint("Symmetric", 29, 2, 32, 2, -2),
    Sketcher.Constraint("Symmetric", 31, 2, 34, 2, -2),
    Sketcher.Constraint("Symmetric", 25, 2, 36, 2, -2),
    Sketcher.Constraint("Symmetric", 27, 2, 38, 2, -2),
    Sketcher.Constraint("Symmetric", 21, 2, 40, 2, -2),
    Sketcher.Constraint("Symmetric", 23, 2, 42, 2, -2),
    Sketcher.Constraint("Symmetric", 17, 2, 44, 2, -2),
    Sketcher.Constraint("Symmetric", 19, 2, 46, 2, -2),
    Sketcher.Constraint("Symmetric", 13, 2, 48, 2, -2),
    Sketcher.Constraint("Symmetric", 15, 2, 50, 2, -2),
    Sketcher.Constraint("Symmetric", 9, 2, 52, 2, -2),
    Sketcher.Constraint("Symmetric", 11, 2, 54, 2, -2),
    Sketcher.Constraint("Symmetric", 5, 2, 56, 2, -2),
    Sketcher.Constraint("Symmetric", 7, 2, 58, 2, -2),
    Sketcher.Constraint("Symmetric", 61, 2, 64, 2, -2),
    Sketcher.Constraint("Symmetric", 63, 2, 66, 2, -2),
    Sketcher.Constraint("Horizontal", 1, 2, 4, 2),
    Sketcher.Constraint("Horizontal", 3, 2, 6, 2),
    Sketcher.Constraint("Horizontal", 5, 2, 8, 2),
    Sketcher.Constraint("Horizontal", 7, 2, 10, 2),
    Sketcher.Constraint("Horizontal", 9, 2, 12, 2),
    Sketcher.Constraint("Horizontal", 11, 2, 14, 2),
    Sketcher.Constraint("Horizontal", 13, 2, 16, 2),
    Sketcher.Constraint("Horizontal", 15, 2, 18, 2),
    Sketcher.Constraint("Horizontal", 17, 2, 20, 2),
    Sketcher.Constraint("Horizontal", 19, 2, 22, 2),
    Sketcher.Constraint("Horizontal", 21, 2, 24, 2),
    Sketcher.Constraint("Horizontal", 23, 2, 26, 2),
    Sketcher.Constraint("Horizontal", 25, 2, 28, 2),
    Sketcher.Constraint("Horizontal", 27, 2, 30, 2),
    Sketcher.Constraint("Horizontal", 57, 2, 60, 2),
    Sketcher.Constraint("Horizontal", 59, 2, 62, 2),
    Sketcher.Constraint("Equal", 3, 5),
    Sketcher.Constraint("Equal", 7, 9),
    Sketcher.Constraint("Equal", 11, 13),
    Sketcher.Constraint("Equal", 15, 17),
    Sketcher.Constraint("Equal", 19, 21),
    Sketcher.Constraint("Equal", 23, 25),
    Sketcher.Constraint("Equal", 27, 29),
    Sketcher.Constraint("DistanceX", 1, 1, 1, 2, Q("0.3 mm")),
    Sketcher.Constraint("DistanceY", 0, 2, 0, 1, Q("1.8 mm")),
    Sketcher.Constraint("DistanceY", 0, 2, -1, 1, Q("2 mm")),
    Sketcher.Constraint("DistanceX", -1, 1, 4, 2, Q("0.5 mm")),
    Sketcher.Constraint("DistanceX", -1, 1, 12, 2, Q("1.8 mm")),
    Sketcher.Constraint("DistanceX", -1, 1, 20, 2, Q("3.1 mm")),
    Sketcher.Constraint("DistanceX", -1, 1, 28, 2, Q("4.4 mm")),
    Sketcher.Constraint("DistanceX", 61, 1, 61, 2, Q("0.575 mm")),
    Sketcher.Constraint("DistanceX", 0, 2, -1, 1, Q("0.15 mm")),
    Sketcher.Constraint("DistanceX", -1, 1, 8, 2, Q("1.15 mm")),
    Sketcher.Constraint("DistanceX", -1, 1, 16, 2, Q("2.45 mm")),
    Sketcher.Constraint("DistanceX", -1, 1, 24, 2, Q("3.75 mm")),
    Sketcher.Constraint("DistanceX", -1, 1, 60, 2, Q("5.05 mm")),
])
pocket4 = body.newObject("PartDesign::Pocket", "Pocket003")
pocket4.Profile = sketch8
pocket4.Length = 0.01

# Sketch on XZ plane
sketch9 = body.newObject("Sketcher::SketchObject", "Sketch008")
sketch9.AttachmentSupport = (doc.getObject("XZ_Plane"), [""])
sketch9.MapMode = "FlatFace"
sketch9.AttachmentOffset = App.Placement(App.Vector(0, 0, 1.25), App.Rotation())
add_polygon(sketch9, [(-5.05, -0.2), (-5.05, -0.25), (5.05, -0.25), (5.05, -0.2)])  # lines 0-3
sketch9.addConstraint([
    Sketcher.Constraint("Vertical", 0),
    Sketcher.Constraint("Horizontal", 1),
    Sketcher.Constraint("Vertical", 2),
    Sketcher.Constraint("Horizontal", 3),
    Sketcher.Constraint("DistanceX", 1, 1, 1, 2, Q("10.1 mm")),
    Sketcher.Constraint("DistanceY", 0, 2, 0, 1, Q("0.05 mm")),
    Sketcher.Constraint("DistanceY", 2, 2, -1, 1, Q("0.2 mm")),
    Sketcher.Constraint("DistanceX", 0, 2, -1, 1, Q("5.05 mm")),
])
pocket5 = body.newObject("PartDesign::Pocket", "Pocket004")
pocket5.Profile = sketch9
pocket5.Length = 0.01
doc.recompute()

fillet = body.newObject("PartDesign::Fillet", "Fillet")
fillet.Base = (pocket5, edges_at(pocket5, [
    (5.625, -1.22, -2),
    (-5.625, -1.225, 4.8),
    (5.625, -1.225, 4.8),
    (3, -1.225, 4.8),
    (-3, -1.225, 4.8),
    (-5.625, -1.22, -2),
]))
fillet.Radius = 0.5

doc.recompute()
